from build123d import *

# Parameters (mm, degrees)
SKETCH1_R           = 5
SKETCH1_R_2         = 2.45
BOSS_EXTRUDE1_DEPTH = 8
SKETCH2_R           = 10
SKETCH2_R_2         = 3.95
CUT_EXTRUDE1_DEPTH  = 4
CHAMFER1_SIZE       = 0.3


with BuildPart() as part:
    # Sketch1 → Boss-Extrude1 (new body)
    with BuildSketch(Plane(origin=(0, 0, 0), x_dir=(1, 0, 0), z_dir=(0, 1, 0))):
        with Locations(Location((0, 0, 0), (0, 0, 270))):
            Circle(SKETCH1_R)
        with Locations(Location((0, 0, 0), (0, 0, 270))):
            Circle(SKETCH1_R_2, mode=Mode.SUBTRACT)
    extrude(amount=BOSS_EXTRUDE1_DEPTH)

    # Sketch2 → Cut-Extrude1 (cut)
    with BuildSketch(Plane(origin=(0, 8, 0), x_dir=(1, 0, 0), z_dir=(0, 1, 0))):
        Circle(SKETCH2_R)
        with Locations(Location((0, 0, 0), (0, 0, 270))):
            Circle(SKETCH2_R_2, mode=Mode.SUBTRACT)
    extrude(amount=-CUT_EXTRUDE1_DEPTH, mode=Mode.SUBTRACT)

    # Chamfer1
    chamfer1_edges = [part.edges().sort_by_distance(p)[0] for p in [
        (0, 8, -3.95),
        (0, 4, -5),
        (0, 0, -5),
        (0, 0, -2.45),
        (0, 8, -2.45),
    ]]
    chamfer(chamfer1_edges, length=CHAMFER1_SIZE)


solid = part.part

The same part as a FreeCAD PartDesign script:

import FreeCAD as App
import Part
import Sketcher
from FreeCAD import Vector
Q = App.Units.Quantity


def edges_at(feature, points):
    """Names of the edges that pass closest to the given points."""
    edges = feature.Shape.Edges
    near = lambda p: min(range(len(edges)), key=lambda i: edges[i].distToShape(Part.Vertex(*p))[0])
    return sorted({f"Edge{near(p) + 1}" for p in points})

doc = App.newDocument("Part")
body = doc.addObject("PartDesign::Body", "Body")

sketch1 = body.newObject("Sketcher::SketchObject", "Sketch")
sketch1.AttachmentSupport = (doc.getObject("XZ_Plane"), [""])
sketch1.MapMode = "FlatFace"
sketch1.addGeometry([
    Part.Circle(Vector(0, 0, 0), Vector(0, 0, 1), 5),
    Part.Circle(Vector(0, 0, 0), Vector(0, 0, 1), 2.45),
], False)
sketch1.addConstraint([
    Sketcher.Constraint("Coincident", 0, 3, -1, 1),
    Sketcher.Constraint("Coincident", 1, 3, -1, 1),
    Sketcher.Constraint("Diameter", 0, Q("10 mm")),
    Sketcher.Constraint("Diameter", 1, Q("4.9 mm")),
])
pad1 = body.newObject("PartDesign::Pad", "Pad")
pad1.Profile = sketch1
pad1.Length = 8
pad1.Reversed = True

sketch2 = body.newObject("Sketcher::SketchObject", "Sketch001")
sketch2.AttachmentSupport = (doc.getObject("XZ_Plane"), [""])
sketch2.MapMode = "FlatFace"
sketch2.AttachmentOffset = App.Placement(Vector(0, 0, -8), App.Rotation())
sketch2.addGeometry([
    Part.Circle(Vector(0, 0, 0), Vector(0, 0, 1), 10),
    Part.Circle(Vector(0, 0, 0), Vector(0, 0, 1), 3.95),
], False)
sketch2.addConstraint([
    Sketcher.Constraint("Coincident", 0, 3, -1, 1),
    Sketcher.Constraint("Coincident", 1, 3, -1, 1),
    Sketcher.Constraint("Diameter", 0, Q("20 mm")),
    Sketcher.Constraint("Diameter", 1, Q("7.9 mm")),
])
pocket1 = body.newObject("PartDesign::Pocket", "Pocket")
pocket1.Profile = sketch2
pocket1.Length = 4
pocket1.Reversed = True
doc.recompute()

chamfer = body.newObject("PartDesign::Chamfer", "Chamfer")
chamfer.Base = (pocket1, edges_at(pocket1, [
    (0, 8, -3.95),
    (0, 4, -5),
    (0, 0, -5),
    (0, 0, -2.45),
    (0, 8, -2.45),
]))
chamfer.Size = 0.3

doc.recompute()
